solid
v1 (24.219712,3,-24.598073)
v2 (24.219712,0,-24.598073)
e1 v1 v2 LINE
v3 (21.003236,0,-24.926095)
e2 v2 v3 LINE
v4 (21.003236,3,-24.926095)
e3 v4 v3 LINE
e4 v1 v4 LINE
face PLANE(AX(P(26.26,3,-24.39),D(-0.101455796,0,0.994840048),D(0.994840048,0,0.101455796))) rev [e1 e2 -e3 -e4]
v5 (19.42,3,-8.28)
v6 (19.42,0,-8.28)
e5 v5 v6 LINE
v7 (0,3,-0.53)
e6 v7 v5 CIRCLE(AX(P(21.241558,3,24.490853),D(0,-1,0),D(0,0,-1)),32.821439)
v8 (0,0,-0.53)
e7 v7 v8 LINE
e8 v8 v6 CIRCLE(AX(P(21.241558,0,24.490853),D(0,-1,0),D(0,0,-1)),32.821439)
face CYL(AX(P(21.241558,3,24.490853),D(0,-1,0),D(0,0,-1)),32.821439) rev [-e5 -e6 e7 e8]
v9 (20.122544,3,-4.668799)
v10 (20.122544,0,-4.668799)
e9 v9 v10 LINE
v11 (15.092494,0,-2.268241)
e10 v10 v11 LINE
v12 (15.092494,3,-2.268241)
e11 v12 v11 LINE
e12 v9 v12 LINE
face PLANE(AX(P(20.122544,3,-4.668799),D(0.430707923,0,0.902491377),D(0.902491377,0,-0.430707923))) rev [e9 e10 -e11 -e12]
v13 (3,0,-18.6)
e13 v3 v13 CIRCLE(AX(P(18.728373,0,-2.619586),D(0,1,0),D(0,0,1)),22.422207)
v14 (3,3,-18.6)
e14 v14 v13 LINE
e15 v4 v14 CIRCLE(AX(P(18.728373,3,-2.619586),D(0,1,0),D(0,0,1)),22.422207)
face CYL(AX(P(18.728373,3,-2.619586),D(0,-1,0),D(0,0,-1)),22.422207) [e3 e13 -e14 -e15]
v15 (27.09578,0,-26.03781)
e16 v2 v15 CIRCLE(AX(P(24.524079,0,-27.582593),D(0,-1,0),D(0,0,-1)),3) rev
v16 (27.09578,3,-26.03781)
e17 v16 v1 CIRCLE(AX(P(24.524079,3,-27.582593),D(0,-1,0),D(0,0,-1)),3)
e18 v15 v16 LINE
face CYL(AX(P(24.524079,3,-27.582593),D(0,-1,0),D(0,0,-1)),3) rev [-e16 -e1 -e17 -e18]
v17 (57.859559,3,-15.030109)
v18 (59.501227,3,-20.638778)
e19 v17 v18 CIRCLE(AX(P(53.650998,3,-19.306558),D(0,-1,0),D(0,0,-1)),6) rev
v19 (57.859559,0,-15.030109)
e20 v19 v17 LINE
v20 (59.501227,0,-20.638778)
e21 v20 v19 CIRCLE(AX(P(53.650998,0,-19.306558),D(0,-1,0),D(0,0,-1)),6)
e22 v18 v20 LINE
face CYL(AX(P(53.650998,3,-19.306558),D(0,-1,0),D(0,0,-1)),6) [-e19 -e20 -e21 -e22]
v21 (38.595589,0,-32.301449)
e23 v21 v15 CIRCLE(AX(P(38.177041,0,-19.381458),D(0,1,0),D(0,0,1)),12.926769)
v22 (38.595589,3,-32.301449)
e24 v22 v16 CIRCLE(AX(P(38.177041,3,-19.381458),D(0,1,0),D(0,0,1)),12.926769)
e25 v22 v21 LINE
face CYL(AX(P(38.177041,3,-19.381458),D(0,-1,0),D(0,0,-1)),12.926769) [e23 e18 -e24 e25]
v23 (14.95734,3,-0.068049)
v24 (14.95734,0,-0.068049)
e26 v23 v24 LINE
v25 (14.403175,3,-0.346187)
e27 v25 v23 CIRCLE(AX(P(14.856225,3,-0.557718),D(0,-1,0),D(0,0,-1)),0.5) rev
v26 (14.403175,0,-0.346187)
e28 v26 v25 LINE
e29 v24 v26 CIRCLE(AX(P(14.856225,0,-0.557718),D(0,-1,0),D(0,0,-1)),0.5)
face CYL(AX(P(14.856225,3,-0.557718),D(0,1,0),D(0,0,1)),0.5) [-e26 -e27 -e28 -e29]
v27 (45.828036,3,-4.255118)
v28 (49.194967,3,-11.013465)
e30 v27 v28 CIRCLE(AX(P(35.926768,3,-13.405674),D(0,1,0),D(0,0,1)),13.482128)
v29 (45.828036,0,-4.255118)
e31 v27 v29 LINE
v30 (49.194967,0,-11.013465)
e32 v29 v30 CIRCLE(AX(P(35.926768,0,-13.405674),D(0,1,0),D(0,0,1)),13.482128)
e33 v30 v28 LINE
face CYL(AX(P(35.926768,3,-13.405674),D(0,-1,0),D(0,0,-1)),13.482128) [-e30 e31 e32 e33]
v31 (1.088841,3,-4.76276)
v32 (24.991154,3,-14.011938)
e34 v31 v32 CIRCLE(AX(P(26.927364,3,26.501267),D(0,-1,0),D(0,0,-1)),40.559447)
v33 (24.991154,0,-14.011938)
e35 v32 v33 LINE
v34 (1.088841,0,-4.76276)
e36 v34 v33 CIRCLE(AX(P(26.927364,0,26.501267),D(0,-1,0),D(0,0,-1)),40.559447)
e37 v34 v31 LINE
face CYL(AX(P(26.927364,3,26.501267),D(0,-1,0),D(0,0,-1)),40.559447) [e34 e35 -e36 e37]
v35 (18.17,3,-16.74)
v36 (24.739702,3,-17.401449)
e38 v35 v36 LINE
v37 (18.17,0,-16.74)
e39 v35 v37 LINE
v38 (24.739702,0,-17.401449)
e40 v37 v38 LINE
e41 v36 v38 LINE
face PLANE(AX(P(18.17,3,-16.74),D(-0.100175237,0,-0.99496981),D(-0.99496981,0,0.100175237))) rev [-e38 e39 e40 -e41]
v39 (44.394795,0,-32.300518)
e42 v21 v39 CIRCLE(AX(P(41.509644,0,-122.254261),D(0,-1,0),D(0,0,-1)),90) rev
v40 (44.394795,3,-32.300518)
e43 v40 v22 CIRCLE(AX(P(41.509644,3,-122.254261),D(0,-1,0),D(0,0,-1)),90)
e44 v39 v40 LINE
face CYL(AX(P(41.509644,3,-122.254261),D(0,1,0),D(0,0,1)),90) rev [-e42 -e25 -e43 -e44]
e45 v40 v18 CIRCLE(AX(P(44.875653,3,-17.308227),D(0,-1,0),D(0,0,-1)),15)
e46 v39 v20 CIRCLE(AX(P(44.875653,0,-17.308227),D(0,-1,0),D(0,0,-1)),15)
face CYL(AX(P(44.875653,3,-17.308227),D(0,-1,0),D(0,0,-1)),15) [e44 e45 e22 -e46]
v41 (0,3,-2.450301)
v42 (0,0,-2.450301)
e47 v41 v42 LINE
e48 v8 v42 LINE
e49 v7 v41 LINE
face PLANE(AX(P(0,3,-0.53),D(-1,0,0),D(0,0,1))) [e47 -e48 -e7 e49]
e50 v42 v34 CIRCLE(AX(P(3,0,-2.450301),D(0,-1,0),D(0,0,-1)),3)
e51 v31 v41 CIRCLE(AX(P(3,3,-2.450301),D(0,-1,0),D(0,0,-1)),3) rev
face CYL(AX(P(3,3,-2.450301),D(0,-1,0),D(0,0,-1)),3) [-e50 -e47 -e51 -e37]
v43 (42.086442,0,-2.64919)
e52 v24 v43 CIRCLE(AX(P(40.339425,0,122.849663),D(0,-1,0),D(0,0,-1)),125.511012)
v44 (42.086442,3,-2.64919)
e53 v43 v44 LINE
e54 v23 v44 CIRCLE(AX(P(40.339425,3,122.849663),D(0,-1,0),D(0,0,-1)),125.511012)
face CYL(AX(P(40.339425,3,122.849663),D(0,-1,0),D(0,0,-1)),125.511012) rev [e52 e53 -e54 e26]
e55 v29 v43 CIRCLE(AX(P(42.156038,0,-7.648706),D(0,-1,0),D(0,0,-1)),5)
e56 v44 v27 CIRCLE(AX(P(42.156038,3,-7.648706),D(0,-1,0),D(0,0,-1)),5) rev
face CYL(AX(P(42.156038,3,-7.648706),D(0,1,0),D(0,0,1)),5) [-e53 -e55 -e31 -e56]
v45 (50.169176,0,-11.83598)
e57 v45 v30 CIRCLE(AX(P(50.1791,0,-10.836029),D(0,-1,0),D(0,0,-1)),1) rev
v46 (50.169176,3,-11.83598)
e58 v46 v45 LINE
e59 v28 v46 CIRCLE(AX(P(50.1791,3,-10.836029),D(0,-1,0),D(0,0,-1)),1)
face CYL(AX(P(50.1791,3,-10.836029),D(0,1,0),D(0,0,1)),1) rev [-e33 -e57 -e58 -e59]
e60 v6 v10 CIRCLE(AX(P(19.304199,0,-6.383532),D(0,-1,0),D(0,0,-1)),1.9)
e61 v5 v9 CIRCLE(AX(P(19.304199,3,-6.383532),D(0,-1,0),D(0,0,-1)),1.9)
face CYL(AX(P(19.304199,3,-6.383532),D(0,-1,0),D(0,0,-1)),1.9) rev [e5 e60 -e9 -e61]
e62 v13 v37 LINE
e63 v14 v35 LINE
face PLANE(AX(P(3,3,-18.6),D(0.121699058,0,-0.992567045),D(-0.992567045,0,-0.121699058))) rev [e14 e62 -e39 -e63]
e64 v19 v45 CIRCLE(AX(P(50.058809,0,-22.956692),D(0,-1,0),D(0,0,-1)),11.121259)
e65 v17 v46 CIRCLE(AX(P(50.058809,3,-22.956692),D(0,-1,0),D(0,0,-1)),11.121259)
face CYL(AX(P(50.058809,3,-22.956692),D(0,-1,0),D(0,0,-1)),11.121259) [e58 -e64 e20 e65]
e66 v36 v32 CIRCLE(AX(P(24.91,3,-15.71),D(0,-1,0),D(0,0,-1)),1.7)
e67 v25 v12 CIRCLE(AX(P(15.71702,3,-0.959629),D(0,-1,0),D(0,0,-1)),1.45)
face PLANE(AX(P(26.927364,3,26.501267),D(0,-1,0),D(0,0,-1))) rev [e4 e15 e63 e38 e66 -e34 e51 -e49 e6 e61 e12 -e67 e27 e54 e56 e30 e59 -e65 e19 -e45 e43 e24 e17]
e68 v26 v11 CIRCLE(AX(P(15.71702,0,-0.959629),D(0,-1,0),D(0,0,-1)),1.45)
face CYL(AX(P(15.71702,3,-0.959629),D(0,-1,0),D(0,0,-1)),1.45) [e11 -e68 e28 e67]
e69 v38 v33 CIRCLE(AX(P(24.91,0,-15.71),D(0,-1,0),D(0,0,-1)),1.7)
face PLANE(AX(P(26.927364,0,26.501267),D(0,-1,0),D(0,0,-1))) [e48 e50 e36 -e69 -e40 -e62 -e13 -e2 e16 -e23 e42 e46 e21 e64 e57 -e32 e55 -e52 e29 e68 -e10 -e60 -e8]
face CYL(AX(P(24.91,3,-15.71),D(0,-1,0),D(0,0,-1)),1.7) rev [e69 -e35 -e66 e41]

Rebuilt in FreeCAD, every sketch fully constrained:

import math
import FreeCAD as App
import Part
import Sketcher

V = App.Vector


def edges_at(feature, points):
    """Names of the edges that pass closest to the given points."""
    edges = feature.Shape.Edges
    near = lambda p: min(range(len(edges)), key=lambda i: edges[i].distToShape(Part.Vertex(*p))[0])
    return sorted({f"Edge{near(p) + 1}" for p in points})

doc = App.newDocument("Part")
body = doc.addObject("PartDesign::Body", "Body")

# Sketch on XZ plane
sketch1 = body.newObject("Sketcher::SketchObject", "Sketch")
sketch1.AttachmentSupport = (doc.getObject("XZ_Plane"), [""])
sketch1.MapMode = "FlatFace"
sketch1.addGeometry([
    Part.LineSegment(V(26.26, -24.39, 0), V(21.003236, -24.926095, 0)),  # 0
    Part.ArcOfCircle(Part.Circle(V(18.728373, -2.619586, 0), V(0, 0, 1), 22.422207), math.radians(-134.544588), math.radians(-84.176992)),  # 1
    Part.LineSegment(V(3, -18.6, 0), V(18.17, -16.74, 0)),  # 2
    Part.LineSegment(V(18.17, -16.74, 0), V(24.739702, -17.401449, 0)),  # 3
    Part.ArcOfCircle(Part.Circle(V(24.91, -15.71, 0), V(0, 0, 1), 1.7), math.radians(-95.749261), math.radians(87.263797)),  # 4
    Part.ArcOfCircle(Part.Circle(V(26.927364, 26.501267, 0), V(0, 0, 1), 40.559447), math.radians(-131.597893), math.radians(-92.736203)),  # 5
    Part.LineSegment(V(0, -3.83, 0), V(0, -0.53, 0)),  # 6
    Part.ArcOfCircle(Part.Circle(V(21.241558, 24.490853, 0), V(0, 0, 1), 32.821439), math.radians(-130.329732), math.radians(-93.181495)),  # 7
    Part.ArcOfCircle(Part.Circle(V(19.304199, -6.383532, 0), V(0, 0, 1), 1.9), math.radians(-86.505769), math.radians(64.487505)),  # 8
    Part.LineSegment(V(20.122544, -4.668799, 0), V(15.092494, -2.268241, 0)),  # 9
    Part.ArcOfCircle(Part.Circle(V(15.71702, -0.959629, 0), V(0, 0, 1), 1.45), math.radians(138.561722), math.radians(244.487505)),  # 10
    Part.ArcOfCircle(Part.Circle(V(40.339425, 122.849663, 0), V(0, 0, 1), 125.511012), math.radians(-101.820016), math.radians(-88.32871)),  # 11
    Part.ArcOfCircle(Part.Circle(V(35.926768, -13.405674, 0), V(0, 0, 1), 13.482128), math.radians(6.583216), math.radians(53.215288)),  # 12
    Part.ArcOfCircle(Part.Circle(V(50.058809, -22.956692, 0), V(0, 0, 1), 11.121259), math.radians(28.090927), math.radians(93.809088)),  # 13
    Part.ArcOfCircle(Part.Circle(V(44.875653, -17.308227, 0), V(0, 0, 1), 15), math.radians(-103.397779), math.radians(-1.573054)),  # 14
    Part.ArcOfCircle(Part.Circle(V(38.177041, -19.381458, 0), V(0, 0, 1), 12.926769), math.radians(-157.203763), math.radians(-75.562462)),  # 15
], False)
sketch1.addConstraint([
    Sketcher.Constraint("Tangent", 0, 2, 1, 2),
    Sketcher.Constraint("Coincident", 1, 1, 2, 1),
    Sketcher.Constraint("Coincident", 2, 2, 3, 1),
    Sketcher.Constraint("Tangent", 3, 2, 4, 1),
    Sketcher.Constraint("Tangent", 4, 2, 5, 2),
    Sketcher.Constraint("Coincident", 5, 1, 6, 1),
    Sketcher.Constraint("Coincident", 6, 2, 7, 1),
    Sketcher.Constraint("Coincident", 7, 2, 8, 1),
    Sketcher.Constraint("Tangent", 8, 2, 9, 1),
    Sketcher.Constraint("Tangent", 9, 2, 10, 2),
    Sketcher.Constraint("Coincident", 10, 1, 11, 1),
    Sketcher.Constraint("Coincident", 11, 2, 12, 2),
    Sketcher.Constraint("Coincident", 12, 1, 13, 2),
    Sketcher.Constraint("Coincident", 13, 1, 14, 2),
    Sketcher.Constraint("Coincident", 14, 1, 15, 2),
    Sketcher.Constraint("Coincident", 15, 1, 0, 1),
    Sketcher.Constraint("Vertical", 6),
    Sketcher.Constraint("PointOnObject", 5, 1, -2),
    Sketcher.Constraint("PointOnObject", 10, 1, -1),
    Sketcher.Constraint("Radius", 14, 15.0),
    Sketcher.Constraint("Radius", 4, 1.7),
    Sketcher.Constraint("Radius", 8, 1.9),
    Sketcher.Constraint("Radius", 10, 1.45),
    Sketcher.Constraint("DistanceY", 6, 1, 6, 2, 3.3),
    Sketcher.Constraint("DistanceX", -1, 1, 1, 1, 3.0),
    Sketcher.Constraint("DistanceX", -1, 1, 11, 2, 44.0),
    Sketcher.Constraint("DistanceY", 1, 1, -1, 1, 18.6),
    Sketcher.Constraint("DistanceX", -1, 1, 14, 1, 41.4),
    Sketcher.Constraint("DistanceY", 14, 1, -1, 1, 31.9),
    Sketcher.Constraint("DistanceX", -1, 1, 4, 3, 24.91),
    Sketcher.Constraint("DistanceY", 4, 3, -1, 1, 15.71),
    Sketcher.Constraint("DistanceX", -1, 1, 2, 2, 18.17),
    Sketcher.Constraint("DistanceY", 2, 2, -1, 1, 16.74),
    Sketcher.Constraint("DistanceY", 5, 1, -1, 1, 3.83),
    Sketcher.Constraint("DistanceX", -1, 1, 7, 2, 19.42),
    Sketcher.Constraint("DistanceY", 7, 2, -1, 1, 8.28),
    Sketcher.Constraint("DistanceX", -1, 1, 10, 1, 14.63),
    Sketcher.Constraint("DistanceX", -1, 1, 12, 1, 49.32),
    Sketcher.Constraint("DistanceY", 12, 1, -1, 1, 11.86),
    Sketcher.Constraint("DistanceX", -1, 1, 13, 1, 59.87),
    Sketcher.Constraint("DistanceY", 13, 1, -1, 1, 17.72),
    Sketcher.Constraint("DistanceX", -1, 1, 15, 1, 26.26),
    Sketcher.Constraint("DistanceY", 15, 1, -1, 1, 24.39),
    Sketcher.Constraint("Radius", 7, 32.821439),
    Sketcher.Constraint("Radius", 11, 125.511012),
    Sketcher.Constraint("Radius", 13, 11.121259),
    Sketcher.Constraint("Radius", 15, 12.926769),
    Sketcher.Constraint("Radius", 1, 22.422207),
    Sketcher.Constraint("Radius", 5, 40.559447),
    Sketcher.Constraint("Radius", 12, 13.482128),
    Sketcher.Constraint("DistanceX", -1, 1, 8, 3, 19.304199),
    Sketcher.Constraint("DistanceY", 8, 2, -1, 1, 4.668799),
    Sketcher.Constraint("DistanceY", 15, 3, 11, 2, 16.773501),
    Sketcher.Constraint("Distance", 0, 5.284029),
])
pad1 = body.newObject("PartDesign::Pad", "Pad")
pad1.Profile = sketch1
pad1.Length = 3
pad1.Reversed = True
doc.recompute()

fillet = body.newObject("PartDesign::Fillet", "Fillet")
fillet.Base = (pad1, edges_at(pad1, [(59.87, 1.5, -17.72)]))
fillet.Radius = 6
doc.recompute()

fillet2 = body.newObject("PartDesign::Fillet", "Fillet001")
fillet2.Base = (fillet, edges_at(fillet, [(41.4, 1.5, -31.9)]))
fillet2.Radius = 90
doc.recompute()

fillet3 = body.newObject("PartDesign::Fillet", "Fillet002")
fillet3.Base = (fillet2, edges_at(fillet2, [(26.26, 1.5, -24.39), (0, 1.5, -3.83)]))
fillet3.Radius = 3
doc.recompute()

fillet4 = body.newObject("PartDesign::Fillet", "Fillet003")
fillet4.Base = (fillet3, edges_at(fillet3, [(49.32, 1.5, -11.86)]))
fillet4.Radius = 1
doc.recompute()

fillet5 = body.newObject("PartDesign::Fillet", "Fillet004")
fillet5.Base = (fillet4, edges_at(fillet4, [(44, 1.5, -2.608)]))
fillet5.Radius = 5
doc.recompute()

fillet6 = body.newObject("PartDesign::Fillet", "Fillet005")
fillet6.Base = (fillet5, edges_at(fillet5, [(14.63, 1.5, 0)]))
fillet6.Radius = 0.5

doc.recompute()
